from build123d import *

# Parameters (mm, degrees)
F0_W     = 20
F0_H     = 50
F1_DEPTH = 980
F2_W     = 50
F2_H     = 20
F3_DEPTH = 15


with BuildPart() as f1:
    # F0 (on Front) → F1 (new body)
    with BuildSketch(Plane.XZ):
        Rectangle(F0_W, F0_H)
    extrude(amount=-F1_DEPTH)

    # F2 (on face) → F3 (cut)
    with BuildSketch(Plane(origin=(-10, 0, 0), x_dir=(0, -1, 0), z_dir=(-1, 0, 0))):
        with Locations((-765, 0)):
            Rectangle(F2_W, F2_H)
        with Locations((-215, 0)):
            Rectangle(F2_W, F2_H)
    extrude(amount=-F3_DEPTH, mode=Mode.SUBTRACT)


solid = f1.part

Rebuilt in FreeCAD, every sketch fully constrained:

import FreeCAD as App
import Part
import Sketcher
from FreeCAD import Vector
Q = App.Units.Quantity

doc = App.newDocument("Part")
body = doc.addObject("PartDesign::Body", "Body")

sketch1 = body.newObject("Sketcher::SketchObject", "Sketch")
sketch1.AttachmentSupport = (doc.getObject("XZ_Plane"), [""])
sketch1.MapMode = "FlatFace"
sketch1.addGeometry([
    Part.LineSegment(Vector(-10, 25, 0), Vector(-10, -25, 0)),
    Part.LineSegment(Vector(-10, -25, 0), Vector(10, -25, 0)),
    Part.LineSegment(Vector(10, -25, 0), Vector(10, 25, 0)),
    Part.LineSegment(Vector(10, 25, 0), Vector(-10, 25, 0)),
], False)
sketch1.addConstraint([
    Sketcher.Constraint("Coincident", 0, 2, 1, 1),
    Sketcher.Constraint("Coincident", 1, 2, 2, 1),
    Sketcher.Constraint("Coincident", 2, 2, 3, 1),
    Sketcher.Constraint("Coincident", 3, 2, 0, 1),
    Sketcher.Constraint("Vertical", 0),
    Sketcher.Constraint("Horizontal", 1),
    Sketcher.Constraint("Vertical", 2),
    Sketcher.Constraint("Horizontal", 3),
    Sketcher.Constraint("Symmetric", 0, 2, 2, 2, -1, 1),
    Sketcher.Constraint("DistanceX", 1, 1, 1, 2, Q("20 mm")),
    Sketcher.Constraint("DistanceY", 0, 2, 0, 1, Q("50 mm")),
])
pad1 = body.newObject("PartDesign::Pad", "Pad")
pad1.Profile = sketch1
pad1.Length = 980
pad1.Reversed = True

sketch2 = body.newObject("Sketcher::SketchObject", "Sketch001")
sketch2.AttachmentSupport = (doc.getObject("YZ_Plane"), [""])
sketch2.MapMode = "FlatFace"
sketch2.AttachmentOffset = App.Placement(Vector(0, 0, -10), App.Rotation())
sketch2.addGeometry([
    Part.LineSegment(Vector(790, 10, 0), Vector(790, -10, 0)),
    Part.LineSegment(Vector(790, -10, 0), Vector(740, -10, 0)),
    Part.LineSegment(Vector(740, -10, 0), Vector(740, 10, 0)),
    Part.LineSegment(Vector(740, 10, 0), Vector(790, 10, 0)),
    Part.LineSegment(Vector(240, 10, 0), Vector(240, -10, 0)),
    Part.LineSegment(Vector(240, -10, 0), Vector(190, -10, 0)),
    Part.LineSegment(Vector(190, -10, 0), Vector(190, 10, 0)),
    Part.LineSegment(Vector(190, 10, 0), Vector(240, 10, 0)),
], False)
sketch2.addConstraint([
    Sketcher.Constraint("Coincident", 0, 2, 1, 1),
    Sketcher.Constraint("Coincident", 1, 2, 2, 1),
    Sketcher.Constraint("Coincident", 2, 2, 3, 1),
    Sketcher.Constraint("Coincident", 3, 2, 0, 1),
    Sketcher.Constraint("Coincident", 4, 2, 5, 1),
    Sketcher.Constraint("Coincident", 5, 2, 6, 1),
    Sketcher.Constraint("Coincident", 6, 2, 7, 1),
    Sketcher.Constraint("Coincident", 7, 2, 4, 1),
    Sketcher.Constraint("Vertical", 0),
    Sketcher.Constraint("Horizontal", 1),
    Sketcher.Constraint("Vertical", 2),
    Sketcher.Constraint("Horizontal", 3),
    Sketcher.Constraint("Vertical", 4),
    Sketcher.Constraint("Horizontal", 5),
    Sketcher.Constraint("Vertical", 6),
    Sketcher.Constraint("Horizontal", 7),
    Sketcher.Constraint("Horizontal", 1, 2, 4, 2),
    Sketcher.Constraint("Horizontal", 3, 2, 6, 2),
    Sketcher.Constraint("Equal", 3, 5),
    Sketcher.Constraint("DistanceX", 1, 2, 1, 1, Q("50 mm")),
    Sketcher.Constraint("DistanceY", 0, 2, 0, 1, Q("20 mm")),
    Sketcher.Constraint("DistanceX", -1, 1, 0, 2, Q("790 mm")),
    Sketcher.Constraint("DistanceY", 0, 2, -1, 1, Q("10 mm")),
    Sketcher.Constraint("DistanceX", -1, 1, 4, 2, Q("240 mm")),
])
pocket1 = body.newObject("PartDesign::Pocket", "Pocket")
pocket1.Profile = sketch2
pocket1.Length = 15
pocket1.Reversed = True

doc.recompute()
